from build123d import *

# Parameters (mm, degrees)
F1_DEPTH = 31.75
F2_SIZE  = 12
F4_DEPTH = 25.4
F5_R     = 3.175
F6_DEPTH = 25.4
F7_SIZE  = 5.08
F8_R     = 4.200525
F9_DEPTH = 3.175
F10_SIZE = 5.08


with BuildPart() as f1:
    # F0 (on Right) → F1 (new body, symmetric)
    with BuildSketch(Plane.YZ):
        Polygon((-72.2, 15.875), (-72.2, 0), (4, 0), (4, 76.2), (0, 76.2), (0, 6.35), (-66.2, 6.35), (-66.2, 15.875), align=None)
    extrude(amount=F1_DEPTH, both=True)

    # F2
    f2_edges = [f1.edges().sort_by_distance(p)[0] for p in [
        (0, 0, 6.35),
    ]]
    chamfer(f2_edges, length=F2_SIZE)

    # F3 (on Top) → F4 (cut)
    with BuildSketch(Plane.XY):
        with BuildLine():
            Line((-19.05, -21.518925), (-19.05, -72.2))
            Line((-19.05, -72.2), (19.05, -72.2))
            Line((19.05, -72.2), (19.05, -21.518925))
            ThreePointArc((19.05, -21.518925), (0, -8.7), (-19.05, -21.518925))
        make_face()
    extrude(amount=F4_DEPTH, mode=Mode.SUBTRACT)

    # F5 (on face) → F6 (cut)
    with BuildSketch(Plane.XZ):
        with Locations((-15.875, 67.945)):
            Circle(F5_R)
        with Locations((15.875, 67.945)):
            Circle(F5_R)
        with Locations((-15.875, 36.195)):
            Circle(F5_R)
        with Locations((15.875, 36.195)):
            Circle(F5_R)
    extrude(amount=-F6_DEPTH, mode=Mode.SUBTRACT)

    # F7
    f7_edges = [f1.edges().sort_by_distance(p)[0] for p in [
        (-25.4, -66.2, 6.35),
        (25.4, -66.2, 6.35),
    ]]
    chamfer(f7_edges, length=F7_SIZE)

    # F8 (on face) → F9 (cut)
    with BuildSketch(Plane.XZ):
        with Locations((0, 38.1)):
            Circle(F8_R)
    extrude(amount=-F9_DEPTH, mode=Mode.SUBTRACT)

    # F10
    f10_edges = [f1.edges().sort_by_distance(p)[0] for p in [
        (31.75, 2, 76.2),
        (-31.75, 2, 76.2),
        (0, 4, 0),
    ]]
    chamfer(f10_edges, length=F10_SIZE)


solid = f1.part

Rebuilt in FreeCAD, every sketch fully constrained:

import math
import FreeCAD as App
import Part
import Sketcher

V = App.Vector
Q = App.Units.Quantity


def edges_at(feature, points):
    """Names of the edges that pass closest to the given points."""
    edges = feature.Shape.Edges
    near = lambda p: min(range(len(edges)), key=lambda i: edges[i].distToShape(Part.Vertex(*p))[0])
    return sorted({f"Edge{near(p) + 1}" for p in points})


def add_polygon(sketch, points):
    """Adds a closed chain of lines whose ends are joined by coincident constraints."""
    first, n = sketch.GeometryCount, len(points)
    for a, b in zip(points, points[1:] + points[:1]):
        sketch.addGeometry(Part.LineSegment(App.Vector(*a, 0), App.Vector(*b, 0)), False)
    for i in range(n):
        sketch.addConstraint(Sketcher.Constraint("Coincident", first + i, 2, first + (i + 1) % n, 1))

doc = App.newDocument("Part")
body = doc.addObject("PartDesign::Body", "Body")

# Sketch on YZ plane
sketch1 = body.newObject("Sketcher::SketchObject", "Sketch")
sketch1.AttachmentSupport = (doc.getObject("YZ_Plane"), [""])
sketch1.MapMode = "FlatFace"
add_polygon(sketch1, [(-72.2, 15.875), (-72.2, 0), (4, 0), (4, 76.2), (0, 76.2), (0, 6.35), (-66.2, 6.35), (-66.2, 15.875)])  # lines 0-7
sketch1.addConstraint(Sketcher.Constraint("Vertical", 0))
sketch1.addConstraint(Sketcher.Constraint("Horizontal", 1))
sketch1.addConstraint(Sketcher.Constraint("Vertical", 2))
sketch1.addConstraint(Sketcher.Constraint("Horizontal", 3))
sketch1.addConstraint(Sketcher.Constraint("Vertical", 4))
sketch1.addConstraint(Sketcher.Constraint("Horizontal", 5))
sketch1.addConstraint(Sketcher.Constraint("Vertical", 6))
sketch1.addConstraint(Sketcher.Constraint("Horizontal", 7))
sketch1.addConstraint(Sketcher.Constraint("PointOnObject", 0, 2, -1))
sketch1.addConstraint(Sketcher.Constraint("PointOnObject", 3, 2, -2))
sketch1.addConstraint(Sketcher.Constraint("Equal", 1, 2))
sketch1.addConstraint(Sketcher.Constraint("DistanceX", 1, 1, 1, 2, Q("3 in")))
sketch1.addConstraint(Sketcher.Constraint("DistanceY", 4, 2, 4, 1, Q("2.75 in")))
sketch1.addConstraint(Sketcher.Constraint("DistanceY", 0, 2, 0, 1, Q("0.625 in")))
sketch1.addConstraint(Sketcher.Constraint("DistanceX", 3, 2, 3, 1, Q("4 mm")))
sketch1.addConstraint(Sketcher.Constraint("DistanceX", 5, 2, 5, 1, Q("66.2 mm")))
pad1 = body.newObject("PartDesign::Pad", "Pad")
pad1.Profile = sketch1
pad1.Length = Q("2.5 in")
pad1.Midplane = True
doc.recompute()

chamfer = body.newObject("PartDesign::Chamfer", "Chamfer")
chamfer.Base = (pad1, edges_at(pad1, [(0, 0, 6.35)]))
chamfer.Size = 12

# Sketch on XY plane
sketch2 = body.newObject("Sketcher::SketchObject", "Sketch001")
sketch2.AttachmentSupport = (doc.getObject("XY_Plane"), [""])
sketch2.MapMode = "FlatFace"
sketch2.addGeometry(Part.LineSegment(V(-19.05, -21.518925, 0), V(-19.05, -72.2, 0)), False)
sketch2.addGeometry(Part.LineSegment(V(-19.05, -72.2, 0), V(19.05, -72.2, 0)), False)
sketch2.addGeometry(Part.LineSegment(V(19.05, -72.2, 0), V(19.05, -21.518925, 0)), False)
sketch2.addGeometry(Part.ArcOfCircle(Part.Circle(V(0, -29.264413, 0), V(0, 0, 1), 20.564413), math.radians(22.126035), math.radians(157.873965)), False)
sketch2.addConstraint(Sketcher.Constraint("Coincident", 0, 2, 1, 1))
sketch2.addConstraint(Sketcher.Constraint("Coincident", 1, 2, 2, 1))
sketch2.addConstraint(Sketcher.Constraint("Coincident", 2, 2, 3, 1))
sketch2.addConstraint(Sketcher.Constraint("Coincident", 3, 2, 0, 1))
sketch2.addConstraint(Sketcher.Constraint("Vertical", 0))
sketch2.addConstraint(Sketcher.Constraint("Horizontal", 1))
sketch2.addConstraint(Sketcher.Constraint("Vertical", 2))
sketch2.addConstraint(Sketcher.Constraint("Symmetric", 2, 2, 3, 2, -2))
sketch2.addConstraint(Sketcher.Constraint("DistanceX", 1, 1, 1, 2, Q("1.5 in")))
sketch2.addConstraint(Sketcher.Constraint("Radius", 3, Q("20.564413 mm")))
sketch2.addConstraint(Sketcher.Constraint("DistanceY", 0, 2, -1, 1, Q("72.2 mm")))
sketch2.addConstraint(Sketcher.Constraint("DistanceY", 0, 2, 0, 1, Q("50.681075 mm")))
pocket1 = body.newObject("PartDesign::Pocket", "Pocket")
pocket1.Profile = sketch2
pocket1.Length = Q("1 in")
pocket1.Reversed = True

# Sketch on XZ plane
sketch3 = body.newObject("Sketcher::SketchObject", "Sketch002")
sketch3.AttachmentSupport = (doc.getObject("XZ_Plane"), [""])
sketch3.MapMode = "FlatFace"
sketch3.addGeometry(Part.Circle(V(-15.875, 67.945, 0), V(0, 0, 1), 3.175), False)
sketch3.addGeometry(Part.Circle(V(15.875, 67.945, 0), V(0, 0, 1), 3.175), False)
sketch3.addGeometry(Part.Circle(V(-15.875, 36.195, 0), V(0, 0, 1), 3.175), False)
sketch3.addGeometry(Part.Circle(V(15.875, 36.195, 0), V(0, 0, 1), 3.175), False)
sketch3.addConstraint(Sketcher.Constraint("Equal", 0, 1))
sketch3.addConstraint(Sketcher.Constraint("Equal", 1, 2))
sketch3.addConstraint(Sketcher.Constraint("Equal", 2, 3))
sketch3.addConstraint(Sketcher.Constraint("Symmetric", 0, 3, 1, 3, -2))
sketch3.addConstraint(Sketcher.Constraint("Symmetric", 2, 3, 3, 3, -2))
sketch3.addConstraint(Sketcher.Constraint("Vertical", 0, 3, 2, 3))
sketch3.addConstraint(Sketcher.Constraint("Diameter", 0, Q("0.25 in")))
sketch3.addConstraint(Sketcher.Constraint("DistanceX", 0, 3, 1, 3, Q("1.25 in")))
sketch3.addConstraint(Sketcher.Constraint("DistanceY", 2, 3, 0, 3, Q("1.25 in")))
sketch3.addConstraint(Sketcher.Constraint("DistanceY", -1, 1, 0, 3, Q("2.675 in")))
pocket2 = body.newObject("PartDesign::Pocket", "Pocket001")
pocket2.Profile = sketch3
pocket2.Length = Q("1 in")
doc.recompute()

chamfer2 = body.newObject("PartDesign::Chamfer", "Chamfer001")
chamfer2.Base = (pocket2, edges_at(pocket2, [(-25.4, -66.2, 6.35), (25.4, -66.2, 6.35)]))
chamfer2.Size = Q("0.2 in")

# Sketch on XZ plane
sketch4 = body.newObject("Sketcher::SketchObject", "Sketch003")
sketch4.AttachmentSupport = (doc.getObject("XZ_Plane"), [""])
sketch4.MapMode = "FlatFace"
sketch4.addGeometry(Part.Circle(V(0, 38.1, 0), V(0, 0, 1), 4.200525), False)
sketch4.addConstraint(Sketcher.Constraint("PointOnObject", 0, 3, -2))
sketch4.addConstraint(Sketcher.Constraint("DistanceY", -1, 1, 0, 3, Q("1.5 in")))
sketch4.addConstraint(Sketcher.Constraint("Diameter", 0, Q("8.40105 mm")))
pocket3 = body.newObject("PartDesign::Pocket", "Pocket002")
pocket3.Profile = sketch4
pocket3.Length = Q("0.125 in")
doc.recompute()

chamfer3 = body.newObject("PartDesign::Chamfer", "Chamfer002")
chamfer3.Base = (pocket3, edges_at(pocket3, [(31.75, 2, 76.2), (-31.75, 2, 76.2), (0, 4, 0)]))
chamfer3.Size = Q("0.2 in")

doc.recompute()
